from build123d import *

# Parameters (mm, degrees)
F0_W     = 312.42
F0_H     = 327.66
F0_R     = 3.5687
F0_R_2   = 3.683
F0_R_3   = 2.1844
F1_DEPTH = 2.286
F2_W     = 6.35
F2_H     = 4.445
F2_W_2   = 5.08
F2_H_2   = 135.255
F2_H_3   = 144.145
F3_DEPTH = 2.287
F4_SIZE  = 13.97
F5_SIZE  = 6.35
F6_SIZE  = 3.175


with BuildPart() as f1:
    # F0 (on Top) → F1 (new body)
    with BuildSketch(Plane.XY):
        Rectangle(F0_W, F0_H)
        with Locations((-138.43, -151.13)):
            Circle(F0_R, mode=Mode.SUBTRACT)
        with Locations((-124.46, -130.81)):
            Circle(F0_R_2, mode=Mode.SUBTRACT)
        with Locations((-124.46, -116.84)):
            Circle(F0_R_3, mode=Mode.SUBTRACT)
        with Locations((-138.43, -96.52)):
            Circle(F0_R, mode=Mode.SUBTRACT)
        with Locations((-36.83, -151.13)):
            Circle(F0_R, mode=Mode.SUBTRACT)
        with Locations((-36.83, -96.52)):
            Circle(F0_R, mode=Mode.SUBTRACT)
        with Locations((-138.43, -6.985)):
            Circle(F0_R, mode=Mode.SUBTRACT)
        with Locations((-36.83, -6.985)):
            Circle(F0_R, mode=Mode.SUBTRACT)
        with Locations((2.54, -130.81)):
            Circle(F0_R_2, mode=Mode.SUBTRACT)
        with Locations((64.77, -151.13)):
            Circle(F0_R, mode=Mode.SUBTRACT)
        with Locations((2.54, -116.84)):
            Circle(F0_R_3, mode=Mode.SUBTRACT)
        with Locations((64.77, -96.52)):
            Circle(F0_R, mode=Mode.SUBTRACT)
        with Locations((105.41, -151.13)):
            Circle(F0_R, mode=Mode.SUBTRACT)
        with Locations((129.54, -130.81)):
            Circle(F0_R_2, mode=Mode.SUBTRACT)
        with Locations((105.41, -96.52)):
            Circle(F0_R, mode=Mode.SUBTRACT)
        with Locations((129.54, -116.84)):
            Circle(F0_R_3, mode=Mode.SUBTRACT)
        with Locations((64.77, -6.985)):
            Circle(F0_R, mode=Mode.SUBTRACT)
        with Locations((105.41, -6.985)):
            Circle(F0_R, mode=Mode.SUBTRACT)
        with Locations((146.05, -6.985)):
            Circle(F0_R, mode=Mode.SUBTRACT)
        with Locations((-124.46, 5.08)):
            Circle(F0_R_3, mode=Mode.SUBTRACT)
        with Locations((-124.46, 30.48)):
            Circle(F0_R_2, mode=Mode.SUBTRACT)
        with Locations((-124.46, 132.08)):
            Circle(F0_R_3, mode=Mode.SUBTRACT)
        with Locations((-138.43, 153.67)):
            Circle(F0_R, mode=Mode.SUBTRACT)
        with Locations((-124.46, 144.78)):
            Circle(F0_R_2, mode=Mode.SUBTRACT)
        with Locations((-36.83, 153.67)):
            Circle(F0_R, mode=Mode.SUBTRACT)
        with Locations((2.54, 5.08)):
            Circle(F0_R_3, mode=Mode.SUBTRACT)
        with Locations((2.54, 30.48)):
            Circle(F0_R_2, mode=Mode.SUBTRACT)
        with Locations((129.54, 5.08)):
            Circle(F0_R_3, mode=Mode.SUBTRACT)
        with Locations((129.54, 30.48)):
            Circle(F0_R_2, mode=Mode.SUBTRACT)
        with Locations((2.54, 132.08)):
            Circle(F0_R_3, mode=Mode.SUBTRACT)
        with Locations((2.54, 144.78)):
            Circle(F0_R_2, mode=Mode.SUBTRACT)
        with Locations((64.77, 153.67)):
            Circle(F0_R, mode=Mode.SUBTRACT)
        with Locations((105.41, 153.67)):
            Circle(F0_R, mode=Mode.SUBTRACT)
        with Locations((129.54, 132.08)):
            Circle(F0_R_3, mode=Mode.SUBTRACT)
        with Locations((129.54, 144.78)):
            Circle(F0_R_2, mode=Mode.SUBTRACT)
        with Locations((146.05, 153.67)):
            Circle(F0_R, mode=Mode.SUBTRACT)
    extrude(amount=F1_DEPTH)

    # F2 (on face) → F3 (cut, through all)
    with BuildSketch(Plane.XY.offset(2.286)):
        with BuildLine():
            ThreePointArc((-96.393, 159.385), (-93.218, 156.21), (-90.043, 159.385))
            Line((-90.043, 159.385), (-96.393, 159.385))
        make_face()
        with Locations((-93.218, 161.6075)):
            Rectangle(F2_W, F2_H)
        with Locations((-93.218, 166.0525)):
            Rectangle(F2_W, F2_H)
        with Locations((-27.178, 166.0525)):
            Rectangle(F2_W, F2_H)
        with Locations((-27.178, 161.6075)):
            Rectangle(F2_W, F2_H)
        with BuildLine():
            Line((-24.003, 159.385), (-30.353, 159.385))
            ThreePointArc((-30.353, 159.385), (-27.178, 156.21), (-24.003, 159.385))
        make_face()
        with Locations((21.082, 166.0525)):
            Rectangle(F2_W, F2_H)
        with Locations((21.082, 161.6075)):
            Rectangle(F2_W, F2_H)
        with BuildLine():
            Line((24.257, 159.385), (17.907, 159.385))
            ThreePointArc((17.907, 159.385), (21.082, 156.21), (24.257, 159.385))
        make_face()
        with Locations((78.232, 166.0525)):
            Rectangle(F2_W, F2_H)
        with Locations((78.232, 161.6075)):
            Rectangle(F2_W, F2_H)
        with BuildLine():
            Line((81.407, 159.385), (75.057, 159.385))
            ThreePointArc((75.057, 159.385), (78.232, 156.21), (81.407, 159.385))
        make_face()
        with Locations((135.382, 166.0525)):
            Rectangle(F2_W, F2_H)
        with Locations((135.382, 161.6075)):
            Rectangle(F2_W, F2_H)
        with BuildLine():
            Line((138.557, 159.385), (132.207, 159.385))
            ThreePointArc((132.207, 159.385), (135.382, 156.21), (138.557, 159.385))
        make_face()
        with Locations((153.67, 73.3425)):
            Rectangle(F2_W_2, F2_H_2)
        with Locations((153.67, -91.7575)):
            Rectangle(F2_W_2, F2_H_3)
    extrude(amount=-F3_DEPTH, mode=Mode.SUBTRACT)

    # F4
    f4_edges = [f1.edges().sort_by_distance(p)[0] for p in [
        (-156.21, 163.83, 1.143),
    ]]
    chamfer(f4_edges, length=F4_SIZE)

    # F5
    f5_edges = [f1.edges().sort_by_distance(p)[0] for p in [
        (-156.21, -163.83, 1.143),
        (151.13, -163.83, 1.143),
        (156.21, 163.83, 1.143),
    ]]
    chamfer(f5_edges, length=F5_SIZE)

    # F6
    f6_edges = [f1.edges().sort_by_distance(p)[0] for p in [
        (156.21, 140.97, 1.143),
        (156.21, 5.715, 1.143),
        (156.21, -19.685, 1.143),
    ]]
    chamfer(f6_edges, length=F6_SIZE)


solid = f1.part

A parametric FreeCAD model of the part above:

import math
import FreeCAD as App
import Part
import Sketcher

V = App.Vector
Q = App.Units.Quantity


def edges_at(feature, points):
    """Names of the edges that pass closest to the given points."""
    edges = feature.Shape.Edges
    near = lambda p: min(range(len(edges)), key=lambda i: edges[i].distToShape(Part.Vertex(*p))[0])
    return sorted({f"Edge{near(p) + 1}" for p in points})

doc = App.newDocument("Part")
params = doc.addObject("Spreadsheet::Sheet", "Params")
for row, (alias, value) in enumerate([
    ("sketch1_diameter", "0.29 in"),
    ("sketch1_diameter2", "0.281 in"),
    ("sketch1_diameter3", "0.172 in"),
    ("sketch1_width", "12.3 in"),
    ("sketch1_height", "12.9 in"),
    ("pad1_length", "0.09 in"),
    ("sketch2_width", "0.2 in"),
    ("sketch2_radius", "0.125 in"),
    ("sketch2_height", "0.35 in"),
    ("sketch2_height2", "5.325 in"),
    ("chamfer_size", "0.55 in"),
    ("chamfer2_size", "0.25 in"),
    ("chamfer3_size", "0.125 in"),
], start=1):
    params.set(f"A{row}", alias)
    params.set(f"B{row}", "=" + value)
    params.setAlias(f"B{row}", alias)

body = doc.addObject("PartDesign::Body", "Body")

sketch1 = body.newObject("Sketcher::SketchObject", "Sketch")
sketch1.AttachmentSupport = (doc.getObject("XY_Plane"), [""])
sketch1.MapMode = "FlatFace"
sketch1.addGeometry([
    Part.LineSegment(V(-156.21, 163.83, 0), V(-156.21, -163.83, 0)),
    Part.LineSegment(V(-156.21, -163.83, 0), V(156.21, -163.83, 0)),
    Part.LineSegment(V(156.21, -163.83, 0), V(156.21, 163.83, 0)),
    Part.LineSegment(V(156.21, 163.83, 0), V(-156.21, 163.83, 0)),
    Part.Circle(V(-138.43, -151.13, 0), V(0, 0, 1), 3.5687),
    Part.Circle(V(-124.46, -130.81, 0), V(0, 0, 1), 3.683),
    Part.Circle(V(-124.46, -116.84, 0), V(0, 0, 1), 2.1844),
    Part.Circle(V(-138.43, -96.52, 0), V(0, 0, 1), 3.5687),
    Part.Circle(V(-36.83, -151.13, 0), V(0, 0, 1), 3.5687),
    Part.Circle(V(2.54, -130.81, 0), V(0, 0, 1), 3.683),
    Part.Circle(V(2.54, -116.84, 0), V(0, 0, 1), 2.1844),
    Part.Circle(V(-36.83, -96.52, 0), V(0, 0, 1), 3.5687),
    Part.Circle(V(-138.43, -6.985, 0), V(0, 0, 1), 3.5687),
    Part.Circle(V(-36.83, -6.985, 0), V(0, 0, 1), 3.5687),
    Part.Circle(V(64.77, -151.13, 0), V(0, 0, 1), 3.5687),
    Part.Circle(V(64.77, -96.52, 0), V(0, 0, 1), 3.5687),
    Part.Circle(V(105.41, -151.13, 0), V(0, 0, 1), 3.5687),
    Part.Circle(V(129.54, -130.81, 0), V(0, 0, 1), 3.683),
    Part.Circle(V(129.54, -116.84, 0), V(0, 0, 1), 2.1844),
    Part.Circle(V(105.41, -96.52, 0), V(0, 0, 1), 3.5687),
    Part.Circle(V(64.77, -6.985, 0), V(0, 0, 1), 3.5687),
    Part.Circle(V(105.41, -6.985, 0), V(0, 0, 1), 3.5687),
    Part.Circle(V(146.05, -6.985, 0), V(0, 0, 1), 3.5687),
    Part.Circle(V(-124.46, 5.08, 0), V(0, 0, 1), 2.1844),
    Part.Circle(V(-124.46, 30.48, 0), V(0, 0, 1), 3.683),
    Part.Circle(V(2.54, 5.08, 0), V(0, 0, 1), 2.1844),
    Part.Circle(V(2.54, 30.48, 0), V(0, 0, 1), 3.683),
    Part.Circle(V(-124.46, 132.08, 0), V(0, 0, 1), 2.1844),
    Part.Circle(V(-124.46, 144.78, 0), V(0, 0, 1), 3.683),
    Part.Circle(V(-138.43, 153.67, 0), V(0, 0, 1), 3.5687),
    Part.Circle(V(-36.83, 153.67, 0), V(0, 0, 1), 3.5687),
    Part.Circle(V(2.54, 132.08, 0), V(0, 0, 1), 2.1844),
    Part.Circle(V(2.54, 144.78, 0), V(0, 0, 1), 3.683),
    Part.Circle(V(129.54, 5.08, 0), V(0, 0, 1), 2.1844),
    Part.Circle(V(129.54, 30.48, 0), V(0, 0, 1), 3.683),
    Part.Circle(V(64.77, 153.67, 0), V(0, 0, 1), 3.5687),
    Part.Circle(V(105.41, 153.67, 0), V(0, 0, 1), 3.5687),
    Part.Circle(V(129.54, 132.08, 0), V(0, 0, 1), 2.1844),
    Part.Circle(V(129.54, 144.78, 0), V(0, 0, 1), 3.683),
    Part.Circle(V(146.05, 153.67, 0), V(0, 0, 1), 3.5687),
], False)
sketch1.addConstraint([
    Sketcher.Constraint("Coincident", 0, 2, 1, 1),
    Sketcher.Constraint("Coincident", 1, 2, 2, 1),
    Sketcher.Constraint("Coincident", 2, 2, 3, 1),
    Sketcher.Constraint("Coincident", 3, 2, 0, 1),
    Sketcher.Constraint("Vertical", 0),
    Sketcher.Constraint("Horizontal", 1),
    Sketcher.Constraint("Vertical", 2),
    Sketcher.Constraint("Horizontal", 3),
    Sketcher.Constraint("Equal", 4, 7),
    Sketcher.Constraint("Equal", 7, 8),
    Sketcher.Constraint("Equal", 5, 9),
    Sketcher.Constraint("Equal", 6, 10),
    Sketcher.Constraint("Equal", 8, 11),
    Sketcher.Constraint("Equal", 11, 12),
    Sketcher.Constraint("Equal", 12, 13),
    Sketcher.Constraint("Equal", 13, 14),
    Sketcher.Constraint("Equal", 14, 15),
    Sketcher.Constraint("Equal", 15, 16),
    Sketcher.Constraint("Equal", 9, 17),
    Sketcher.Constraint("Equal", 10, 18),
    Sketcher.Constraint("Equal", 16, 19),
    Sketcher.Constraint("Equal", 19, 20),
    Sketcher.Constraint("Equal", 20, 21),
    Sketcher.Constraint("Equal", 21, 22),
    Sketcher.Constraint("Equal", 18, 23),
    Sketcher.Constraint("Equal", 17, 24),
    Sketcher.Constraint("Equal", 23, 25),
    Sketcher.Constraint("Equal", 24, 26),
    Sketcher.Constraint("Equal", 25, 27),
    Sketcher.Constraint("Equal", 26, 28),
    Sketcher.Constraint("Equal", 22, 29),
    Sketcher.Constraint("Equal", 29, 30),
    Sketcher.Constraint("Equal", 27, 31),
    Sketcher.Constraint("Equal", 28, 32),
    Sketcher.Constraint("Equal", 31, 33),
    Sketcher.Constraint("Equal", 32, 34),
    Sketcher.Constraint("Equal", 30, 35),
    Sketcher.Constraint("Equal", 35, 36),
    Sketcher.Constraint("Equal", 33, 37),
    Sketcher.Constraint("Equal", 34, 38),
    Sketcher.Constraint("Equal", 36, 39),
    Sketcher.Constraint("Symmetric", 0, 2, 2, 2, -1, 1),
    Sketcher.Constraint("Horizontal", 4, 3, 8, 3),
    Sketcher.Constraint("Horizontal", 5, 3, 9, 3),
    Sketcher.Constraint("Horizontal", 6, 3, 10, 3),
    Sketcher.Constraint("Horizontal", 7, 3, 11, 3),
    Sketcher.Constraint("Horizontal", 12, 3, 13, 3),
    Sketcher.Constraint("Horizontal", 8, 3, 14, 3),
    Sketcher.Constraint("Horizontal", 11, 3, 15, 3),
    Sketcher.Constraint("Horizontal", 14, 3, 16, 3),
    Sketcher.Constraint("Horizontal", 9, 3, 17, 3),
    Sketcher.Constraint("Horizontal", 10, 3, 18, 3),
    Sketcher.Constraint("Horizontal", 15, 3, 19, 3),
    Sketcher.Constraint("Horizontal", 13, 3, 20, 3),
    Sketcher.Constraint("Horizontal", 20, 3, 21, 3),
    Sketcher.Constraint("Horizontal", 21, 3, 22, 3),
    Sketcher.Constraint("Horizontal", 23, 3, 25, 3),
    Sketcher.Constraint("Horizontal", 24, 3, 26, 3),
    Sketcher.Constraint("Horizontal", 29, 3, 30, 3),
    Sketcher.Constraint("Horizontal", 27, 3, 31, 3),
    Sketcher.Constraint("Horizontal", 28, 3, 32, 3),
    Sketcher.Constraint("Horizontal", 25, 3, 33, 3),
    Sketcher.Constraint("Horizontal", 26, 3, 34, 3),
    Sketcher.Constraint("Horizontal", 30, 3, 35, 3),
    Sketcher.Constraint("Horizontal", 35, 3, 36, 3),
    Sketcher.Constraint("Horizontal", 31, 3, 37, 3),
    Sketcher.Constraint("Horizontal", 32, 3, 38, 3),
    Sketcher.Constraint("Horizontal", 36, 3, 39, 3),
    Sketcher.Constraint("Vertical", 5, 3, 6, 3),
    Sketcher.Constraint("Vertical", 4, 3, 7, 3),
    Sketcher.Constraint("Vertical", 9, 3, 10, 3),
    Sketcher.Constraint("Vertical", 8, 3, 11, 3),
    Sketcher.Constraint("Vertical", 7, 3, 12, 3),
    Sketcher.Constraint("Vertical", 11, 3, 13, 3),
    Sketcher.Constraint("Vertical", 14, 3, 15, 3),
    Sketcher.Constraint("Vertical", 17, 3, 18, 3),
    Sketcher.Constraint("Vertical", 16, 3, 19, 3),
    Sketcher.Constraint("Vertical", 15, 3, 20, 3),
    Sketcher.Constraint("Vertical", 19, 3, 21, 3),
    Sketcher.Constraint("Vertical", 6, 3, 23, 3),
    Sketcher.Constraint("Vertical", 23, 3, 24, 3),
    Sketcher.Constraint("Vertical", 10, 3, 25, 3),
    Sketcher.Constraint("Vertical", 25, 3, 26, 3),
    Sketcher.Constraint("Vertical", 24, 3, 27, 3),
    Sketcher.Constraint("Vertical", 27, 3, 28, 3),
    Sketcher.Constraint("Vertical", 12, 3, 29, 3),
    Sketcher.Constraint("Vertical", 13, 3, 30, 3),
    Sketcher.Constraint("Vertical", 26, 3, 31, 3),
    Sketcher.Constraint("Vertical", 31, 3, 32, 3),
    Sketcher.Constraint("Vertical", 18, 3, 33, 3),
    Sketcher.Constraint("Vertical", 33, 3, 34, 3),
    Sketcher.Constraint("Vertical", 20, 3, 35, 3),
    Sketcher.Constraint("Vertical", 21, 3, 36, 3),
    Sketcher.Constraint("Vertical", 34, 3, 37, 3),
    Sketcher.Constraint("Vertical", 37, 3, 38, 3),
    Sketcher.Constraint("Vertical", 22, 3, 39, 3),
    Sketcher.Constraint("Diameter", 5, Q("0.29 in")),
    Sketcher.Constraint("Diameter", 4, Q("0.281 in")),
    Sketcher.Constraint("Diameter", 6, Q("0.172 in")),
    Sketcher.Constraint("DistanceX", 1, 1, 1, 2, Q("12.3 in")),
    Sketcher.Constraint("DistanceY", 0, 2, 0, 1, Q("12.9 in")),
    Sketcher.Constraint("DistanceX", 4, 3, 8, 3, Q("4 in")),
    Sketcher.Constraint("DistanceX", 5, 3, 9, 3, Q("5 in")),
    Sketcher.Constraint("DistanceX", 8, 3, 14, 3, Q("4 in")),
    Sketcher.Constraint("DistanceX", 9, 3, 17, 3, Q("5 in")),
    Sketcher.Constraint("DistanceY", 7, 3, 23, 3, Q("4 in")),
    Sketcher.Constraint("DistanceY", 23, 3, 24, 3, Q("1 in")),
    Sketcher.Constraint("DistanceY", 24, 3, 27, 3, Q("4 in")),
    Sketcher.Constraint("DistanceX", 16, 3, 1, 2, Q("2 in")),
    Sketcher.Constraint("DistanceX", 5, 3, -1, 1, Q("4.9 in")),
    Sketcher.Constraint("DistanceY", 6, 3, -1, 1, Q("4.6 in")),
    Sketcher.Constraint("DistanceY", 7, 3, -1, 1, Q("3.8 in")),
    Sketcher.Constraint("DistanceY", -1, 1, 28, 3, Q("5.7 in")),
    Sketcher.Constraint("DistanceY", 4, 3, 5, 3, Q("0.8 in")),
    Sketcher.Constraint("DistanceX", 14, 3, 16, 3, Q("1.6 in")),
    Sketcher.Constraint("DistanceX", 21, 3, 22, 3, Q("1.6 in")),
    Sketcher.Constraint("DistanceY", 0, 2, 4, 3, Q("0.5 in")),
    Sketcher.Constraint("DistanceY", 39, 3, 2, 2, Q("0.4 in")),
    Sketcher.Constraint("DistanceY", 12, 3, -1, 1, Q("0.275 in")),
])
sketch1.setExpression("Constraints[96]", "Params.sketch1_diameter")
sketch1.setExpression("Constraints[97]", "Params.sketch1_diameter2")
sketch1.setExpression("Constraints[98]", "Params.sketch1_diameter3")
sketch1.setExpression("Constraints[99]", "Params.sketch1_width")
sketch1.setExpression("Constraints[100]", "Params.sketch1_height")
pad1 = body.newObject("PartDesign::Pad", "Pad")
pad1.Profile = sketch1
pad1.setExpression("Length", "Params.pad1_length")

sketch2 = body.newObject("Sketcher::SketchObject", "Sketch001")
sketch2.AttachmentSupport = (doc.getObject("XY_Plane"), [""])
sketch2.MapMode = "FlatFace"
sketch2.AttachmentOffset = App.Placement(V(0, 0, 0.09 * 25.4), App.Rotation())
sketch2.addGeometry([
    Part.ArcOfCircle(Part.Circle(V(-93.218, 159.385, 0), V(0, 0, 1), 3.175), math.radians(180), math.radians(360)),
    Part.LineSegment(V(-90.043, 159.385, 0), V(-90.043, 168.275, 0)),
    Part.LineSegment(V(-90.043, 168.275, 0), V(-96.393, 168.275, 0)),
    Part.LineSegment(V(-96.393, 168.275, 0), V(-96.393, 159.385, 0)),
    Part.LineSegment(V(-30.353, 168.275, 0), V(-30.353, 159.385, 0)),
    Part.ArcOfCircle(Part.Circle(V(-27.178, 159.385, 0), V(0, 0, 1), 3.175), math.radians(180), math.radians(360)),
    Part.LineSegment(V(-24.003, 159.385, 0), V(-24.003, 168.275, 0)),
    Part.LineSegment(V(-24.003, 168.275, 0), V(-30.353, 168.275, 0)),
    Part.LineSegment(V(17.907, 168.275, 0), V(17.907, 159.385, 0)),
    Part.ArcOfCircle(Part.Circle(V(21.082, 159.385, 0), V(0, 0, 1), 3.175), math.radians(180), math.radians(360)),
    Part.LineSegment(V(24.257, 159.385, 0), V(24.257, 168.275, 0)),
    Part.LineSegment(V(24.257, 168.275, 0), V(17.907, 168.275, 0)),
    Part.LineSegment(V(75.057, 168.275, 0), V(75.057, 159.385, 0)),
    Part.ArcOfCircle(Part.Circle(V(78.232, 159.385, 0), V(0, 0, 1), 3.175), math.radians(180), math.radians(360)),
    Part.LineSegment(V(81.407, 159.385, 0), V(81.407, 168.275, 0)),
    Part.LineSegment(V(81.407, 168.275, 0), V(75.057, 168.275, 0)),
    Part.LineSegment(V(132.207, 168.275, 0), V(132.207, 159.385, 0)),
    Part.ArcOfCircle(Part.Circle(V(135.382, 159.385, 0), V(0, 0, 1), 3.175), math.radians(180), math.radians(360)),
    Part.LineSegment(V(138.557, 159.385, 0), V(138.557, 168.275, 0)),
    Part.LineSegment(V(138.557, 168.275, 0), V(132.207, 168.275, 0)),
    Part.LineSegment(V(151.13, 140.97, 0), V(151.13, 5.715, 0)),
    Part.LineSegment(V(151.13, 5.715, 0), V(156.21, 5.715, 0)),
    Part.LineSegment(V(156.21, 5.715, 0), V(156.21, 140.97, 0)),
    Part.LineSegment(V(156.21, 140.97, 0), V(151.13, 140.97, 0)),
    Part.LineSegment(V(151.13, -19.685, 0), V(151.13, -163.83, 0)),
    Part.LineSegment(V(151.13, -163.83, 0), V(156.21, -163.83, 0)),
    Part.LineSegment(V(156.21, -163.83, 0), V(156.21, -19.685, 0)),
    Part.LineSegment(V(156.21, -19.685, 0), V(151.13, -19.685, 0)),
], False)
sketch2.addConstraint([
    Sketcher.Constraint("Tangent", 0, 2, 1, 1),
    Sketcher.Constraint("Coincident", 1, 2, 2, 1),
    Sketcher.Constraint("Coincident", 2, 2, 3, 1),
    Sketcher.Constraint("Tangent", 3, 2, 0, 1),
    Sketcher.Constraint("Tangent", 4, 2, 5, 1),
    Sketcher.Constraint("Tangent", 5, 2, 6, 1),
    Sketcher.Constraint("Coincident", 6, 2, 7, 1),
    Sketcher.Constraint("Coincident", 7, 2, 4, 1),
    Sketcher.Constraint("Tangent", 8, 2, 9, 1),
    Sketcher.Constraint("Tangent", 9, 2, 10, 1),
    Sketcher.Constraint("Coincident", 10, 2, 11, 1),
    Sketcher.Constraint("Coincident", 11, 2, 8, 1),
    Sketcher.Constraint("Tangent", 12, 2, 13, 1),
    Sketcher.Constraint("Tangent", 13, 2, 14, 1),
    Sketcher.Constraint("Coincident", 14, 2, 15, 1),
    Sketcher.Constraint("Coincident", 15, 2, 12, 1),
    Sketcher.Constraint("Tangent", 16, 2, 17, 1),
    Sketcher.Constraint("Tangent", 17, 2, 18, 1),
    Sketcher.Constraint("Coincident", 18, 2, 19, 1),
    Sketcher.Constraint("Coincident", 19, 2, 16, 1),
    Sketcher.Constraint("Coincident", 20, 2, 21, 1),
    Sketcher.Constraint("Coincident", 21, 2, 22, 1),
    Sketcher.Constraint("Coincident", 22, 2, 23, 1),
    Sketcher.Constraint("Coincident", 23, 2, 20, 1),
    Sketcher.Constraint("Coincident", 24, 2, 25, 1),
    Sketcher.Constraint("Coincident", 25, 2, 26, 1),
    Sketcher.Constraint("Coincident", 26, 2, 27, 1),
    Sketcher.Constraint("Coincident", 27, 2, 24, 1),
    Sketcher.Constraint("Vertical", 1),
    Sketcher.Constraint("Horizontal", 2),
    Sketcher.Constraint("Vertical", 3),
    Sketcher.Constraint("Vertical", 4),
    Sketcher.Constraint("Vertical", 6),
    Sketcher.Constraint("Horizontal", 7),
    Sketcher.Constraint("Vertical", 8),
    Sketcher.Constraint("Vertical", 10),
    Sketcher.Constraint("Horizontal", 11),
    Sketcher.Constraint("Vertical", 12),
    Sketcher.Constraint("Vertical", 14),
    Sketcher.Constraint("Horizontal", 15),
    Sketcher.Constraint("Vertical", 16),
    Sketcher.Constraint("Vertical", 18),
    Sketcher.Constraint("Horizontal", 19),
    Sketcher.Constraint("Vertical", 20),
    Sketcher.Constraint("Horizontal", 21),
    Sketcher.Constraint("Vertical", 22),
    Sketcher.Constraint("Horizontal", 23),
    Sketcher.Constraint("Vertical", 24),
    Sketcher.Constraint("Horizontal", 25),
    Sketcher.Constraint("Vertical", 26),
    Sketcher.Constraint("Horizontal", 27),
    Sketcher.Constraint("Equal", 0, 5),
    Sketcher.Constraint("Equal", 5, 9),
    Sketcher.Constraint("Equal", 9, 13),
    Sketcher.Constraint("Equal", 13, 17),
    Sketcher.Constraint("Horizontal", 0, 3, 5, 3),
    Sketcher.Constraint("Horizontal", 5, 3, 9, 3),
    Sketcher.Constraint("Horizontal", 9, 3, 13, 3),
    Sketcher.Constraint("Horizontal", 13, 3, 17, 3),
    Sketcher.Constraint("Horizontal", 2, 2, 6, 2),
    Sketcher.Constraint("Horizontal", 7, 2, 10, 2),
    Sketcher.Constraint("Horizontal", 11, 2, 14, 2),
    Sketcher.Constraint("Horizontal", 15, 2, 18, 2),
    Sketcher.Constraint("Vertical", 23, 2, 24, 2),
    Sketcher.Constraint("Vertical", 22, 2, 25, 2),
    Sketcher.Constraint("DistanceX", 21, 1, 21, 2, Q("0.2 in")),
    Sketcher.Constraint("Radius", 0, Q("0.125 in")),
    Sketcher.Constraint("DistanceX", 0, 3, 17, 3, Q("9 in")),
    Sketcher.Constraint("DistanceX", 9, 2, 12, 2, Q("2 in")),
    Sketcher.Constraint("DistanceX", 13, 2, 16, 2, Q("2 in")),
    Sketcher.Constraint("DistanceY", 24, 2, 23, 2, Q("12 in")),
    Sketcher.Constraint("DistanceY", 26, 2, 21, 2, Q("1 in")),
    Sketcher.Constraint("DistanceY", 1, 1, 1, 2, Q("0.35 in")),
    Sketcher.Constraint("DistanceX", 0, 3, 5, 3, Q("2.6 in")),
    Sketcher.Constraint("DistanceY", 20, 2, 18, 2, Q("6.4 in")),
    Sketcher.Constraint("DistanceY", 20, 2, 20, 1, Q("5.325 in")),
    Sketcher.Constraint("DistanceX", 0, 3, -1, 1, Q("3.67 in")),
    Sketcher.Constraint("DistanceX", -1, 1, 20, 2, Q("5.95 in")),
    Sketcher.Constraint("DistanceY", -1, 1, 22, 2, Q("5.55 in")),
])
sketch2.setExpression("Constraints[65]", "Params.sketch2_width")
sketch2.setExpression("Constraints[66]", "Params.sketch2_radius")
sketch2.setExpression("Constraints[72]", "Params.sketch2_height")
sketch2.setExpression("Constraints[75]", "Params.sketch2_height2")
pocket1 = body.newObject("PartDesign::Pocket", "Pocket")
pocket1.Profile = sketch2
pocket1.Type = "ThroughAll"
doc.recompute()

chamfer = body.newObject("PartDesign::Chamfer", "Chamfer")
chamfer.Base = (pocket1, edges_at(pocket1, [(-156.21, 163.83, 1.143)]))
chamfer.setExpression("Size", "Params.chamfer_size")
doc.recompute()

chamfer2 = body.newObject("PartDesign::Chamfer", "Chamfer001")
chamfer2.Base = (chamfer, edges_at(chamfer, [(-156.21, -163.83, 1.143), (151.13, -163.83, 1.143), (156.21, 163.83, 1.143)]))
chamfer2.setExpression("Size", "Params.chamfer2_size")
doc.recompute()

chamfer3 = body.newObject("PartDesign::Chamfer", "Chamfer002")
chamfer3.Base = (chamfer2, edges_at(chamfer2, [(156.21, 140.97, 1.143), (156.21, 5.715, 1.143), (156.21, -19.685, 1.143)]))
chamfer3.setExpression("Size", "Params.chamfer3_size")

doc.recompute()
